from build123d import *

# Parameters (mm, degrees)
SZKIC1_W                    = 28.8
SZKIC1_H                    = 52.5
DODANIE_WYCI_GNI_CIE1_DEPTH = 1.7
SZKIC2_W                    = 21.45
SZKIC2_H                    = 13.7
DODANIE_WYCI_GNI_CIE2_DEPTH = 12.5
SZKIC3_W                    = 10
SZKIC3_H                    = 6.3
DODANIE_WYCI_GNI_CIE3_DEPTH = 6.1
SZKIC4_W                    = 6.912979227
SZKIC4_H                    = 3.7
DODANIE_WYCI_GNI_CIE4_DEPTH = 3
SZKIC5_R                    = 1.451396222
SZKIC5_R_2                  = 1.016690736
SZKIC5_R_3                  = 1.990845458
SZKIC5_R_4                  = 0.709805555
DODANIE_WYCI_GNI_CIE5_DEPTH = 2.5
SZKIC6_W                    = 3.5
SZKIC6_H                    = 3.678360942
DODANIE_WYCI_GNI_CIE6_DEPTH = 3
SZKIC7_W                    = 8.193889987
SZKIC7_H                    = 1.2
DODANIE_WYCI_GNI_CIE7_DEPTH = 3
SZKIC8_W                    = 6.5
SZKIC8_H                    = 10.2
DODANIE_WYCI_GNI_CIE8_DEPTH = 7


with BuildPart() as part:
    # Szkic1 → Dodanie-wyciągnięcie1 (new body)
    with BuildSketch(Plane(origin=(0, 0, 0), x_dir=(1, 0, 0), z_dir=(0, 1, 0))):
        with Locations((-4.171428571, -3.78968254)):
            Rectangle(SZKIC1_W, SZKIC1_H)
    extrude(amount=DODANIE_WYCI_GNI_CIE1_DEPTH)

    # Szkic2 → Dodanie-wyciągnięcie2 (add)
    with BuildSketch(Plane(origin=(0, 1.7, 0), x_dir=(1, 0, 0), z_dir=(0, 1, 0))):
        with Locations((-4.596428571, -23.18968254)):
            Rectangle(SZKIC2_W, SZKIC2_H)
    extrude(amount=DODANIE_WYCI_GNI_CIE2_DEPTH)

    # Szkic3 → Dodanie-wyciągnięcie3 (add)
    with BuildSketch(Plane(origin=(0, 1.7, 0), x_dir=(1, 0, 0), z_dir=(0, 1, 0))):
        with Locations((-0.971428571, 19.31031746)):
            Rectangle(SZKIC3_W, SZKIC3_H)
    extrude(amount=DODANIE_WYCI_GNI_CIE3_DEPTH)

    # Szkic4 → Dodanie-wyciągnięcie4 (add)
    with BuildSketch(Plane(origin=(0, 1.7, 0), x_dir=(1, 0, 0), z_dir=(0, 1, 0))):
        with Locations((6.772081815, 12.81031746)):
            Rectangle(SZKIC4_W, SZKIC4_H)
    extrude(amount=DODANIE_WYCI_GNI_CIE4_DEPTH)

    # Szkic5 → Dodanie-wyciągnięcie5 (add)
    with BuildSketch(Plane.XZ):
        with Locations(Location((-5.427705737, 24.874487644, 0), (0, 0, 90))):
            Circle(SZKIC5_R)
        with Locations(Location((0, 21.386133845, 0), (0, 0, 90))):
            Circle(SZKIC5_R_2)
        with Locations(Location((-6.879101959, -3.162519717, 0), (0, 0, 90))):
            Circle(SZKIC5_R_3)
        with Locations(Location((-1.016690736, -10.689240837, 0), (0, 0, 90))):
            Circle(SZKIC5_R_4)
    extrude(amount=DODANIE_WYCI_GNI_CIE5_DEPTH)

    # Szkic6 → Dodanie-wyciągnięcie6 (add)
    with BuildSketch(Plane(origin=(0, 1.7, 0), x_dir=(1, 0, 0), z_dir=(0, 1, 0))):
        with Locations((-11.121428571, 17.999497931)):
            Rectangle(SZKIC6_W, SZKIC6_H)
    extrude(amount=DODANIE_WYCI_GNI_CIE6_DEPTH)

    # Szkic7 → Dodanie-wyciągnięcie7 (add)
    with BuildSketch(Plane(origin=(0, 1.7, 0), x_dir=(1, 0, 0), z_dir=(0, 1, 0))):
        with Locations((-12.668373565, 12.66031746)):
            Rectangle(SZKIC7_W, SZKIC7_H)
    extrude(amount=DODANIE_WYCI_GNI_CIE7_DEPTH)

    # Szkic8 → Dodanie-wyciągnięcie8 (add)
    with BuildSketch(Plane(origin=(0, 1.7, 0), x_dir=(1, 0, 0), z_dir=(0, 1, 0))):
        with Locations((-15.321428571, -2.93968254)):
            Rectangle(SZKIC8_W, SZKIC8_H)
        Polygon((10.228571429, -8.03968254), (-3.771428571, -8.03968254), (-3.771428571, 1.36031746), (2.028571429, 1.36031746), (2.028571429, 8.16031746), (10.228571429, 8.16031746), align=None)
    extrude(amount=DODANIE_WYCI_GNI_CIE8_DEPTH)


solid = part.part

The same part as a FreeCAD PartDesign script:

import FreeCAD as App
import Part
import Sketcher

doc = App.newDocument("Part")
body = doc.addObject("PartDesign::Body", "Body")

# Sketch on XZ plane
sketch1 = doc.addObject("Sketcher::SketchObject", "Sketch")
body.addObject(sketch1)
sketch1.AttachmentSupport = (doc.XZ_Plane, [""])
sketch1.MapMode = "FlatFace"
sketch1.addGeometry(Part.LineSegment(App.Vector(-19, -22, 0), App.Vector(-19, 30, 0)), False)
sketch1.addGeometry(Part.LineSegment(App.Vector(-19, 30, 0), App.Vector(10, 30, 0)), False)
sketch1.addGeometry(Part.LineSegment(App.Vector(10, 30, 0), App.Vector(10, -22, 0)), False)
sketch1.addGeometry(Part.LineSegment(App.Vector(10, -22, 0), App.Vector(-19, -22, 0)), False)
sketch1.addConstraint(Sketcher.Constraint("Coincident", 0, 2, 1, 1))
sketch1.addConstraint(Sketcher.Constraint("Coincident", 1, 2, 2, 1))
sketch1.addConstraint(Sketcher.Constraint("Coincident", 2, 2, 3, 1))
sketch1.addConstraint(Sketcher.Constraint("Coincident", 3, 2, 0, 1))
sketch1.addConstraint(Sketcher.Constraint("Vertical", 0))
sketch1.addConstraint(Sketcher.Constraint("Horizontal", 1))
sketch1.addConstraint(Sketcher.Constraint("Vertical", 2))
sketch1.addConstraint(Sketcher.Constraint("Horizontal", 3))
sketch1.addConstraint(Sketcher.Constraint("DistanceX", 1, 1, 1, 2, 28.8))
sketch1.addConstraint(Sketcher.Constraint("DistanceY", 0, 1, 0, 2, 52.5))
sketch1.addConstraint(Sketcher.Constraint("DistanceX", 0, 2, -1, 1, 18.571429))
sketch1.addConstraint(Sketcher.Constraint("DistanceY", -1, 1, 0, 2, 30.039683))
pad1 = doc.addObject("PartDesign::Pad", "Pad")
body.addObject(pad1)
pad1.Profile = sketch1
pad1.Length = 1.7
pad1.Reversed = True

# Sketch on XZ plane
sketch2 = doc.addObject("Sketcher::SketchObject", "Sketch001")
body.addObject(sketch2)
sketch2.AttachmentSupport = (doc.XZ_Plane, [""])
sketch2.MapMode = "FlatFace"
sketch2.AttachmentOffset = App.Placement(App.Vector(0, 0, -1.7), App.Rotation())
sketch2.addGeometry(Part.LineSegment(App.Vector(-15, 16, 0), App.Vector(-15, 30, 0)), False)
sketch2.addGeometry(Part.LineSegment(App.Vector(-15, 30, 0), App.Vector(6, 30, 0)), False)
sketch2.addGeometry(Part.LineSegment(App.Vector(6, 30, 0), App.Vector(6, 16, 0)), False)
sketch2.addGeometry(Part.LineSegment(App.Vector(6, 16, 0), App.Vector(-15, 16, 0)), False)
sketch2.addConstraint(Sketcher.Constraint("Coincident", 0, 2, 1, 1))
sketch2.addConstraint(Sketcher.Constraint("Coincident", 1, 2, 2, 1))
sketch2.addConstraint(Sketcher.Constraint("Coincident", 2, 2, 3, 1))
sketch2.addConstraint(Sketcher.Constraint("Coincident", 3, 2, 0, 1))
sketch2.addConstraint(Sketcher.Constraint("Vertical", 0))
sketch2.addConstraint(Sketcher.Constraint("Horizontal", 1))
sketch2.addConstraint(Sketcher.Constraint("Vertical", 2))
sketch2.addConstraint(Sketcher.Constraint("Horizontal", 3))
sketch2.addConstraint(Sketcher.Constraint("DistanceY", 0, 1, 0, 2, 13.7))
sketch2.addConstraint(Sketcher.Constraint("DistanceX", 1, 1, 1, 2, 21.45))
sketch2.addConstraint(Sketcher.Constraint("DistanceX", 0, 2, -1, 1, 15.321429))
sketch2.addConstraint(Sketcher.Constraint("DistanceY", -1, 1, 0, 2, 30.039683))
pad2 = doc.addObject("PartDesign::Pad", "Pad001")
body.addObject(pad2)
pad2.Profile = sketch2
pad2.Length = 12.5
pad2.Reversed = True

# Sketch on XZ plane
sketch3 = doc.addObject("Sketcher::SketchObject", "Sketch002")
body.addObject(sketch3)
sketch3.AttachmentSupport = (doc.XZ_Plane, [""])
sketch3.MapMode = "FlatFace"
sketch3.AttachmentOffset = App.Placement(App.Vector(0, 0, -1.7), App.Rotation())
sketch3.addGeometry(Part.LineSegment(App.Vector(-6, -22, 0), App.Vector(-6, -16, 0)), False)
sketch3.addGeometry(Part.LineSegment(App.Vector(-6, -16, 0), App.Vector(4, -16, 0)), False)
sketch3.addGeometry(Part.LineSegment(App.Vector(4, -16, 0), App.Vector(4, -22, 0)), False)
sketch3.addGeometry(Part.LineSegment(App.Vector(4, -22, 0), App.Vector(-6, -22, 0)), False)
sketch3.addConstraint(Sketcher.Constraint("Coincident", 0, 2, 1, 1))
sketch3.addConstraint(Sketcher.Constraint("Coincident", 1, 2, 2, 1))
sketch3.addConstraint(Sketcher.Constraint("Coincident", 2, 2, 3, 1))
sketch3.addConstraint(Sketcher.Constraint("Coincident", 3, 2, 0, 1))
sketch3.addConstraint(Sketcher.Constraint("Vertical", 0))
sketch3.addConstraint(Sketcher.Constraint("Horizontal", 1))
sketch3.addConstraint(Sketcher.Constraint("Vertical", 2))
sketch3.addConstraint(Sketcher.Constraint("Horizontal", 3))
sketch3.addConstraint(Sketcher.Constraint("DistanceX", 1, 1, 1, 2, 10.0))
sketch3.addConstraint(Sketcher.Constraint("DistanceY", 0, 1, 0, 2, 6.3))
sketch3.addConstraint(Sketcher.Constraint("DistanceX", 0, 2, -1, 1, 5.971429))
sketch3.addConstraint(Sketcher.Constraint("DistanceY", 0, 2, -1, 1, 16.160317))
pad3 = doc.addObject("PartDesign::Pad", "Pad002")
body.addObject(pad3)
pad3.Profile = sketch3
pad3.Length = 6.1
pad3.Reversed = True

# Sketch on XZ plane
sketch4 = doc.addObject("Sketcher::SketchObject", "Sketch003")
body.addObject(sketch4)
sketch4.AttachmentSupport = (doc.XZ_Plane, [""])
sketch4.MapMode = "FlatFace"
sketch4.AttachmentOffset = App.Placement(App.Vector(0, 0, -1.7), App.Rotation())
sketch4.addGeometry(Part.LineSegment(App.Vector(3.3, -14.7, 0), App.Vector(3.3, -11, 0)), False)
sketch4.addGeometry(Part.LineSegment(App.Vector(3.3, -11, 0), App.Vector(10.2, -11, 0)), False)
sketch4.addGeometry(Part.LineSegment(App.Vector(10.2, -11, 0), App.Vector(10.2, -14.7, 0)), False)
sketch4.addGeometry(Part.LineSegment(App.Vector(10.2, -14.7, 0), App.Vector(3.3, -14.7, 0)), False)
sketch4.addConstraint(Sketcher.Constraint("Coincident", 0, 2, 1, 1))
sketch4.addConstraint(Sketcher.Constraint("Coincident", 1, 2, 2, 1))
sketch4.addConstraint(Sketcher.Constraint("Coincident", 2, 2, 3, 1))
sketch4.addConstraint(Sketcher.Constraint("Coincident", 3, 2, 0, 1))
sketch4.addConstraint(Sketcher.Constraint("Vertical", 0))
sketch4.addConstraint(Sketcher.Constraint("Horizontal", 1))
sketch4.addConstraint(Sketcher.Constraint("Vertical", 2))
sketch4.addConstraint(Sketcher.Constraint("Horizontal", 3))
sketch4.addConstraint(Sketcher.Constraint("DistanceY", 0, 1, 0, 2, 3.7))
sketch4.addConstraint(Sketcher.Constraint("DistanceX", 1, 1, 1, 2, 6.912979))
sketch4.addConstraint(Sketcher.Constraint("DistanceX", -1, 1, 1, 2, 10.228571))
sketch4.addConstraint(Sketcher.Constraint("DistanceY", 0, 2, -1, 1, 10.960317))
pad4 = doc.addObject("PartDesign::Pad", "Pad003")
body.addObject(pad4)
pad4.Profile = sketch4
pad4.Length = 3
pad4.Reversed = True

# Sketch on XZ plane
sketch5 = doc.addObject("Sketcher::SketchObject", "Sketch004")
body.addObject(sketch5)
sketch5.AttachmentSupport = (doc.XZ_Plane, [""])
sketch5.MapMode = "FlatFace"
sketch5.addGeometry(Part.Circle(App.Vector(-5.4, 24.9, 0), App.Vector(0, 0, 1), 1.5), False)
sketch5.addGeometry(Part.Circle(App.Vector(0, 21.4, 0), App.Vector(0, 0, 1), 1), False)
sketch5.addGeometry(Part.Circle(App.Vector(-6.9, -3.2, 0), App.Vector(0, 0, 1), 2), False)
sketch5.addGeometry(Part.Circle(App.Vector(-1, -10.7, 0), App.Vector(0, 0, 1), 0.7), False)
sketch5.addConstraint(Sketcher.Constraint("PointOnObject", 1, 3, -2))
sketch5.addConstraint(Sketcher.Constraint("Diameter", 1, 2.033381))
sketch5.addConstraint(Sketcher.Constraint("Diameter", 2, 3.981691))
sketch5.addConstraint(Sketcher.Constraint("Diameter", 3, 1.419611))
sketch5.addConstraint(Sketcher.Constraint("Diameter", 0, 2.902792))
sketch5.addConstraint(Sketcher.Constraint("DistanceX", 2, 3, -1, 1, 6.879102))
sketch5.addConstraint(Sketcher.Constraint("DistanceY", 2, 3, -1, 1, 3.16252))
sketch5.addConstraint(Sketcher.Constraint("DistanceX", 3, 3, -1, 1, 1.016691))
sketch5.addConstraint(Sketcher.Constraint("DistanceY", 3, 3, -1, 1, 10.689241))
sketch5.addConstraint(Sketcher.Constraint("DistanceY", 3, 3, 0, 3, 35.563728))
sketch5.addConstraint(Sketcher.Constraint("DistanceX", 0, 3, -1, 1, 5.427706))
sketch5.addConstraint(Sketcher.Constraint("DistanceY", -1, 1, 1, 3, 21.386134))
pad5 = doc.addObject("PartDesign::Pad", "Pad004")
body.addObject(pad5)
pad5.Profile = sketch5
pad5.Length = 2.5

# Sketch on XZ plane
sketch6 = doc.addObject("Sketcher::SketchObject", "Sketch005")
body.addObject(sketch6)
sketch6.AttachmentSupport = (doc.XZ_Plane, [""])
sketch6.MapMode = "FlatFace"
sketch6.AttachmentOffset = App.Placement(App.Vector(0, 0, -1.7), App.Rotation())
sketch6.addGeometry(Part.LineSegment(App.Vector(-12.9, -19.8, 0), App.Vector(-12.9, -16.2, 0)), False)
sketch6.addGeometry(Part.LineSegment(App.Vector(-12.9, -16.2, 0), App.Vector(-9.4, -16.2, 0)), False)
sketch6.addGeometry(Part.LineSegment(App.Vector(-9.4, -16.2, 0), App.Vector(-9.4, -19.8, 0)), False)
sketch6.addGeometry(Part.LineSegment(App.Vector(-9.4, -19.8, 0), App.Vector(-12.9, -19.8, 0)), False)
sketch6.addConstraint(Sketcher.Constraint("Coincident", 0, 2, 1, 1))
sketch6.addConstraint(Sketcher.Constraint("Coincident", 1, 2, 2, 1))
sketch6.addConstraint(Sketcher.Constraint("Coincident", 2, 2, 3, 1))
sketch6.addConstraint(Sketcher.Constraint("Coincident", 3, 2, 0, 1))
sketch6.addConstraint(Sketcher.Constraint("Vertical", 0))
sketch6.addConstraint(Sketcher.Constraint("Horizontal", 1))
sketch6.addConstraint(Sketcher.Constraint("Vertical", 2))
sketch6.addConstraint(Sketcher.Constraint("Horizontal", 3))
sketch6.addConstraint(Sketcher.Constraint("DistanceX", 1, 1, 1, 2, 3.5))
sketch6.addConstraint(Sketcher.Constraint("DistanceY", 0, 1, 0, 2, 3.678361))
sketch6.addConstraint(Sketcher.Constraint("DistanceX", 0, 2, -1, 1, 12.871429))
sketch6.addConstraint(Sketcher.Constraint("DistanceY", 2, 2, -1, 1, 19.838678))
pad6 = doc.addObject("PartDesign::Pad", "Pad005")
body.addObject(pad6)
pad6.Profile = sketch6
pad6.Length = 3
pad6.Reversed = True

# Sketch on XZ plane
sketch7 = doc.addObject("Sketcher::SketchObject", "Sketch006")
body.addObject(sketch7)
sketch7.AttachmentSupport = (doc.XZ_Plane, [""])
sketch7.MapMode = "FlatFace"
sketch7.AttachmentOffset = App.Placement(App.Vector(0, 0, -1.7), App.Rotation())
sketch7.addGeometry(Part.LineSegment(App.Vector(-16.8, -13.3, 0), App.Vector(-16.8, -12.1, 0)), False)
sketch7.addGeometry(Part.LineSegment(App.Vector(-16.8, -12.1, 0), App.Vector(-8.6, -12.1, 0)), False)
sketch7.addGeometry(Part.LineSegment(App.Vector(-8.6, -12.1, 0), App.Vector(-8.6, -13.3, 0)), False)
sketch7.addGeometry(Part.LineSegment(App.Vector(-8.6, -13.3, 0), App.Vector(-16.8, -13.3, 0)), False)
sketch7.addConstraint(Sketcher.Constraint("Coincident", 0, 2, 1, 1))
sketch7.addConstraint(Sketcher.Constraint("Coincident", 1, 2, 2, 1))
sketch7.addConstraint(Sketcher.Constraint("Coincident", 2, 2, 3, 1))
sketch7.addConstraint(Sketcher.Constraint("Coincident", 3, 2, 0, 1))
sketch7.addConstraint(Sketcher.Constraint("Vertical", 0))
sketch7.addConstraint(Sketcher.Constraint("Horizontal", 1))
sketch7.addConstraint(Sketcher.Constraint("Vertical", 2))
sketch7.addConstraint(Sketcher.Constraint("Horizontal", 3))
sketch7.addConstraint(Sketcher.Constraint("DistanceY", 0, 1, 0, 2, 1.2))
sketch7.addConstraint(Sketcher.Constraint("DistanceX", 1, 1, 1, 2, 8.19389))
sketch7.addConstraint(Sketcher.Constraint("DistanceX", 0, 2, -1, 1, 16.765319))
sketch7.addConstraint(Sketcher.Constraint("DistanceY", 0, 2, -1, 1, 12.060317))
pad7 = doc.addObject("PartDesign::Pad", "Pad006")
body.addObject(pad7)
pad7.Profile = sketch7
pad7.Length = 3
pad7.Reversed = True

# Sketch on XZ plane
sketch8 = doc.addObject("Sketcher::SketchObject", "Sketch007")
body.addObject(sketch8)
sketch8.AttachmentSupport = (doc.XZ_Plane, [""])
sketch8.MapMode = "FlatFace"
sketch8.AttachmentOffset = App.Placement(App.Vector(0, 0, -1.7), App.Rotation())
sketch8.addGeometry(Part.LineSegment(App.Vector(-19, -2, 0), App.Vector(-19, 8, 0)), False)
sketch8.addGeometry(Part.LineSegment(App.Vector(-19, 8, 0), App.Vector(-12, 8, 0)), False)
sketch8.addGeometry(Part.LineSegment(App.Vector(-12, 8, 0), App.Vector(-12, -2, 0)), False)
sketch8.addGeometry(Part.LineSegment(App.Vector(-12, -2, 0), App.Vector(-19, -2, 0)), False)
sketch8.addGeometry(Part.LineSegment(App.Vector(-4, 8, 0), App.Vector(10, 8, 0)), False)
sketch8.addGeometry(Part.LineSegment(App.Vector(10, 8, 0), App.Vector(10, -8, 0)), False)
sketch8.addGeometry(Part.LineSegment(App.Vector(10, -8, 0), App.Vector(2, -8, 0)), False)
sketch8.addGeometry(Part.LineSegment(App.Vector(2, -8, 0), App.Vector(2, -1, 0)), False)
sketch8.addGeometry(Part.LineSegment(App.Vector(2, -1, 0), App.Vector(-4, -1, 0)), False)
sketch8.addGeometry(Part.LineSegment(App.Vector(-4, -1, 0), App.Vector(-4, 8, 0)), False)
sketch8.addConstraint(Sketcher.Constraint("Coincident", 0, 2, 1, 1))
sketch8.addConstraint(Sketcher.Constraint("Coincident", 1, 2, 2, 1))
sketch8.addConstraint(Sketcher.Constraint("Coincident", 2, 2, 3, 1))
sketch8.addConstraint(Sketcher.Constraint("Coincident", 3, 2, 0, 1))
sketch8.addConstraint(Sketcher.Constraint("Coincident", 4, 2, 5, 1))
sketch8.addConstraint(Sketcher.Constraint("Coincident", 5, 2, 6, 1))
sketch8.addConstraint(Sketcher.Constraint("Coincident", 6, 2, 7, 1))
sketch8.addConstraint(Sketcher.Constraint("Coincident", 7, 2, 8, 1))
sketch8.addConstraint(Sketcher.Constraint("Coincident", 8, 2, 9, 1))
sketch8.addConstraint(Sketcher.Constraint("Coincident", 9, 2, 4, 1))
sketch8.addConstraint(Sketcher.Constraint("Vertical", 0))
sketch8.addConstraint(Sketcher.Constraint("Horizontal", 1))
sketch8.addConstraint(Sketcher.Constraint("Vertical", 2))
sketch8.addConstraint(Sketcher.Constraint("Horizontal", 3))
sketch8.addConstraint(Sketcher.Constraint("Horizontal", 4))
sketch8.addConstraint(Sketcher.Constraint("Vertical", 5))
sketch8.addConstraint(Sketcher.Constraint("Horizontal", 6))
sketch8.addConstraint(Sketcher.Constraint("Vertical", 7))
sketch8.addConstraint(Sketcher.Constraint("Horizontal", 8))
sketch8.addConstraint(Sketcher.Constraint("Vertical", 9))
sketch8.addConstraint(Sketcher.Constraint("Horizontal", 1, 2, 4, 2))
sketch8.addConstraint(Sketcher.Constraint("DistanceX", 4, 1, 4, 2, 14.0))
sketch8.addConstraint(Sketcher.Constraint("DistanceX", 1, 1, 1, 2, 6.5))
sketch8.addConstraint(Sketcher.Constraint("DistanceX", 6, 2, 6, 1, 8.2))
sketch8.addConstraint(Sketcher.Constraint("DistanceY", 0, 1, 0, 2, 10.2))
sketch8.addConstraint(Sketcher.Constraint("DistanceY", 5, 2, 5, 1, 16.2))
sketch8.addConstraint(Sketcher.Constraint("DistanceY", 7, 1, 7, 2, 6.8))
sketch8.addConstraint(Sketcher.Constraint("DistanceX", 1, 2, 4, 2, 22.3))
sketch8.addConstraint(Sketcher.Constraint("DistanceX", 0, 2, -1, 1, 18.571429))
sketch8.addConstraint(Sketcher.Constraint("DistanceY", -1, 1, 0, 2, 8.039683))
pad8 = doc.addObject("PartDesign::Pad", "Pad007")
body.addObject(pad8)
pad8.Profile = sketch8
pad8.Length = 7
pad8.Reversed = True

doc.recompute()
